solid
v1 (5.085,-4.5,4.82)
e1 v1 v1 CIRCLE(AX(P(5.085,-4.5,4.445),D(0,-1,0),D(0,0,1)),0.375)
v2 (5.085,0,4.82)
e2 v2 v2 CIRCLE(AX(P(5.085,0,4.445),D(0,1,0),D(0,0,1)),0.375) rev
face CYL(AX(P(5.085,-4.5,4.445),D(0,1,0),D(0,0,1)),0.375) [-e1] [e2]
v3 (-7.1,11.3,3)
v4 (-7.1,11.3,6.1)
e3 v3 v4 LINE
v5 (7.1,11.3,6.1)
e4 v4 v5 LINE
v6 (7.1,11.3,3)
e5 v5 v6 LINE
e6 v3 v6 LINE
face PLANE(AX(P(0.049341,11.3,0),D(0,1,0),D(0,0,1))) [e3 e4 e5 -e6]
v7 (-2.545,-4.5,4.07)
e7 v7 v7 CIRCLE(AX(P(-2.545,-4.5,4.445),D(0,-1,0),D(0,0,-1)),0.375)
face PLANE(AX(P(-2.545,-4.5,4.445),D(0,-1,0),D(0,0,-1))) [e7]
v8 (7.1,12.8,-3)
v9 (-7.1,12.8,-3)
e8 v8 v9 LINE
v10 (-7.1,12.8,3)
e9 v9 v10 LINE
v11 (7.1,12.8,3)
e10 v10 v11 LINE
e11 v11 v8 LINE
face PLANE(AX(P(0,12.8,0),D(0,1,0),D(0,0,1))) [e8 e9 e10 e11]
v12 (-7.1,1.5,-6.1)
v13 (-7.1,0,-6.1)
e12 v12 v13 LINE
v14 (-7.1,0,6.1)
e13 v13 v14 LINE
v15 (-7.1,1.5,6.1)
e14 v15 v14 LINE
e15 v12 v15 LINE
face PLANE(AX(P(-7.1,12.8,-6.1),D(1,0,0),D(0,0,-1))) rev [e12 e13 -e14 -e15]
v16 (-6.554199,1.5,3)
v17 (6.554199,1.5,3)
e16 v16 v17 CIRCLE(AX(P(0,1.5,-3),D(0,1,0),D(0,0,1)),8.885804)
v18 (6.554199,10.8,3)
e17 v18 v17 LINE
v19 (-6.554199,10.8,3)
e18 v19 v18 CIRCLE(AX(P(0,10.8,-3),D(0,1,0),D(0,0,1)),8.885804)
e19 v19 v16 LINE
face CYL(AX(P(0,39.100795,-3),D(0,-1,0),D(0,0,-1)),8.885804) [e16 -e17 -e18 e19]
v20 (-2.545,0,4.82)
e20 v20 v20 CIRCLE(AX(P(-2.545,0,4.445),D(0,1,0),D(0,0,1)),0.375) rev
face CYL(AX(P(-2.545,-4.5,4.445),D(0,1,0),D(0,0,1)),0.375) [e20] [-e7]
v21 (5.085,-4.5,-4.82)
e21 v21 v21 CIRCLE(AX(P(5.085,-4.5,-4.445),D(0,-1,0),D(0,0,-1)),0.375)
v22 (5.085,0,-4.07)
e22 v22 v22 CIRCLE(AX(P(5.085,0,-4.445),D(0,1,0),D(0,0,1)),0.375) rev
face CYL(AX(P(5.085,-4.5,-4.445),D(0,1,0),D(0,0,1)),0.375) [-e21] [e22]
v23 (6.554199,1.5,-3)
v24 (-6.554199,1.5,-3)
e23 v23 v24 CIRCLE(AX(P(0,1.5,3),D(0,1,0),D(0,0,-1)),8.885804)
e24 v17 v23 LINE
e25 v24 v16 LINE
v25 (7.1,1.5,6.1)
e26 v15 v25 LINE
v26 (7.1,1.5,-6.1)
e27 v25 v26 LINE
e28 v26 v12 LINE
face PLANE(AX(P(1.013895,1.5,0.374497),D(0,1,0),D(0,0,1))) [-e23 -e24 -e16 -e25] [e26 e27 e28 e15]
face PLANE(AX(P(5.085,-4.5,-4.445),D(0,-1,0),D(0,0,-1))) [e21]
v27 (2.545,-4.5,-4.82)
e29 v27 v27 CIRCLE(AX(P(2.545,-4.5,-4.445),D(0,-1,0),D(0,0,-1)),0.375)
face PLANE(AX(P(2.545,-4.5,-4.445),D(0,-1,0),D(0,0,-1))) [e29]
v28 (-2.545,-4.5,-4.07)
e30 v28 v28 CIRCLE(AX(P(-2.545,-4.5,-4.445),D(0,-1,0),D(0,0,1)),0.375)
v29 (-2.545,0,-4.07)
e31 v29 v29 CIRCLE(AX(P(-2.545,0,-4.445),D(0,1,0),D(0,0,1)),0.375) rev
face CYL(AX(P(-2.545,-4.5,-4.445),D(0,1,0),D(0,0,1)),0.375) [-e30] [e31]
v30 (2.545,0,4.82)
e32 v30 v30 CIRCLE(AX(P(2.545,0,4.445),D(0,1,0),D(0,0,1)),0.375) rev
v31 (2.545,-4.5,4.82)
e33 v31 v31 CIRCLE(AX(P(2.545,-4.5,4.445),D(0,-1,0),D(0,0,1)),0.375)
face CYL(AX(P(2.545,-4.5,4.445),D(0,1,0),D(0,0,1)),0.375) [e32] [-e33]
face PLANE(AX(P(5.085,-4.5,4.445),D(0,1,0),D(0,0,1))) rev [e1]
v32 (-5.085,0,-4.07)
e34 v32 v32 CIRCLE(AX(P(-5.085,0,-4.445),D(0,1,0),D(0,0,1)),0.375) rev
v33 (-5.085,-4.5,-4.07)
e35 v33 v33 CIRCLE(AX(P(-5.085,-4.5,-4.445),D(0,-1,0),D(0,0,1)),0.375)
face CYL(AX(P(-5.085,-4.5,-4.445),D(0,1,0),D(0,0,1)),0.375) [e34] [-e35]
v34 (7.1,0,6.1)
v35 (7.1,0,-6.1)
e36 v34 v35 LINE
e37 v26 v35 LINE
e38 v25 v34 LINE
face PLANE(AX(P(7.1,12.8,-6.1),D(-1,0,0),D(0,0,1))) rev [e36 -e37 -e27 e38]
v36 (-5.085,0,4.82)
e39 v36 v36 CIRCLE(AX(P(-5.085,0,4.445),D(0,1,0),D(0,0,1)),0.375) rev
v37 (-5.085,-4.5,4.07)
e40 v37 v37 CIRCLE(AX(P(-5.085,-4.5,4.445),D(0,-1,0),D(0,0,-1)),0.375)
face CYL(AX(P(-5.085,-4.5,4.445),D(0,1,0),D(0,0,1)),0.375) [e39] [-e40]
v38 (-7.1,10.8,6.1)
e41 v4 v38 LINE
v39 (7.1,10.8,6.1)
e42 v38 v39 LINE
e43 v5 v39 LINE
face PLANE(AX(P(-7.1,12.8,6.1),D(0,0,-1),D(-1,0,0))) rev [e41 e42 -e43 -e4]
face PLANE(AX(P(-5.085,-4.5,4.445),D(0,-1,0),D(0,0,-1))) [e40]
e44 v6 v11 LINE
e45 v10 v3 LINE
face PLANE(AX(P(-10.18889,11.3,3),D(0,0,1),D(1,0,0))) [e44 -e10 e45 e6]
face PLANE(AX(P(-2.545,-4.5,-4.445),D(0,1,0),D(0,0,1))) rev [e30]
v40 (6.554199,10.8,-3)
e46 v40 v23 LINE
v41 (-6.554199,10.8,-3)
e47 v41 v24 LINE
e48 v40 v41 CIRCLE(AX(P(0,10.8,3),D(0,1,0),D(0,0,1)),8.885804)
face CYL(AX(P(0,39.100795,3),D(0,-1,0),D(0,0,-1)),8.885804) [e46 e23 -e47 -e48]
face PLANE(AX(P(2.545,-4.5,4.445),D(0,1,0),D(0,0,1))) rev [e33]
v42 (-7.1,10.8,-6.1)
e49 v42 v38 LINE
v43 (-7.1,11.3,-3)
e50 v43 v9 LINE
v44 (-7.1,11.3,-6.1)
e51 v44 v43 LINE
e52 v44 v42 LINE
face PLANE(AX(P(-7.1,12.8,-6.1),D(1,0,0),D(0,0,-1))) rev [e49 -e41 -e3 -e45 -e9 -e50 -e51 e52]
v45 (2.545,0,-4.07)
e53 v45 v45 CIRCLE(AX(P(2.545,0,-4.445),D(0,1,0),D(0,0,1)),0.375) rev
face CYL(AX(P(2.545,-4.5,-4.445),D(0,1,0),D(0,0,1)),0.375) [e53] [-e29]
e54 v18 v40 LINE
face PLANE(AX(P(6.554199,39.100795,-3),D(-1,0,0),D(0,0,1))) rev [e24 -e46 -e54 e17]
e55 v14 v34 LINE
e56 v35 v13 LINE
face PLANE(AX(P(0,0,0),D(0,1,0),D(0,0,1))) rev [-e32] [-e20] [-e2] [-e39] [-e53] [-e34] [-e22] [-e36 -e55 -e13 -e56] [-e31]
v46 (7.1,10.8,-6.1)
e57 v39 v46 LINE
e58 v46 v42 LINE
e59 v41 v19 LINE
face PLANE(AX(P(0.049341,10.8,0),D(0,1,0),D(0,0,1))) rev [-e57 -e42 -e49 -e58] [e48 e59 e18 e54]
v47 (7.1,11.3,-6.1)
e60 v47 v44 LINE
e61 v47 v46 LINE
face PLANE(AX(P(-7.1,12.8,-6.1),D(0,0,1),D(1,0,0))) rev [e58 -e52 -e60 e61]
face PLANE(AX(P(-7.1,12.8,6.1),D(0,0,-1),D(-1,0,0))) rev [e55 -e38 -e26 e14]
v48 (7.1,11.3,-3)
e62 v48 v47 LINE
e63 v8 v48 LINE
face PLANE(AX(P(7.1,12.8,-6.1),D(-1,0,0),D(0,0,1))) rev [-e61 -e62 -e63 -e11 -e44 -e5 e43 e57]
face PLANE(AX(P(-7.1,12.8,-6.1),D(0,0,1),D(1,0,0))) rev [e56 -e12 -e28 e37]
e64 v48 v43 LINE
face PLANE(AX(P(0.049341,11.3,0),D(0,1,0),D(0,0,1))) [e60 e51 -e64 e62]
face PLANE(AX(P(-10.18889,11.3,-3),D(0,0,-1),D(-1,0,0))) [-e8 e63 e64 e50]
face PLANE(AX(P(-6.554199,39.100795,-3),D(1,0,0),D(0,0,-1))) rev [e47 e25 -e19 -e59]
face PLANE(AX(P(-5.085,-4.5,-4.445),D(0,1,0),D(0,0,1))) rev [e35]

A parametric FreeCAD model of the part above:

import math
import FreeCAD as App
import Part
import Sketcher
from FreeCAD import Vector

doc = App.newDocument("Part")
body = doc.addObject("PartDesign::Body", "Body")

sketch1 = body.newObject("Sketcher::SketchObject", "Sketch")
sketch1.AttachmentSupport = (doc.getObject("XZ_Plane"), [""])
sketch1.MapMode = "FlatFace"
sketch1.addGeometry(Part.LineSegment(Vector(-7, -6, 0), Vector(-7, 6, 0)), False)
sketch1.addGeometry(Part.LineSegment(Vector(-7, 6, 0), Vector(7, 6, 0)), False)
sketch1.addGeometry(Part.LineSegment(Vector(7, 6, 0), Vector(7, -6, 0)), False)
sketch1.addGeometry(Part.LineSegment(Vector(7, -6, 0), Vector(-7, -6, 0)), False)
sketch1.addConstraint(Sketcher.Constraint("Coincident", 0, 2, 1, 1))
sketch1.addConstraint(Sketcher.Constraint("Coincident", 1, 2, 2, 1))
sketch1.addConstraint(Sketcher.Constraint("Coincident", 2, 2, 3, 1))
sketch1.addConstraint(Sketcher.Constraint("Coincident", 3, 2, 0, 1))
sketch1.addConstraint(Sketcher.Constraint("Vertical", 0))
sketch1.addConstraint(Sketcher.Constraint("Horizontal", 1))
sketch1.addConstraint(Sketcher.Constraint("Vertical", 2))
sketch1.addConstraint(Sketcher.Constraint("Horizontal", 3))
sketch1.addConstraint(Sketcher.Constraint("Symmetric", 0, 2, 2, 2, -1, 1))
sketch1.addConstraint(Sketcher.Constraint("DistanceX", 1, 1, 1, 2, 14.2))
sketch1.addConstraint(Sketcher.Constraint("DistanceY", 0, 1, 0, 2, 12.2))
pad1 = body.newObject("PartDesign::Pad", "Pad")
pad1.Profile = sketch1
pad1.Length = 12.8
pad1.Reversed = True

sketch2 = body.newObject("Sketcher::SketchObject", "Sketch001")
sketch2.AttachmentSupport = (doc.getObject("XZ_Plane"), [""])
sketch2.MapMode = "FlatFace"
sketch2.AttachmentOffset = App.Placement(Vector(0, 0, -12.8), App.Rotation())
sketch2.addGeometry(Part.LineSegment(Vector(-10, -9, 0), Vector(-10, 9, 0)), False)
sketch2.addGeometry(Part.LineSegment(Vector(-10, 9, 0), Vector(10, 9, 0)), False)
sketch2.addGeometry(Part.LineSegment(Vector(10, 9, 0), Vector(10, -9, 0)), False)
sketch2.addGeometry(Part.LineSegment(Vector(10, -9, 0), Vector(-10, -9, 0)), False)
sketch2.addGeometry(Part.LineSegment(Vector(10, 3, 0), Vector(-10, 3, 0)), False)
sketch2.addGeometry(Part.LineSegment(Vector(-10, 3, 0), Vector(-10, -3, 0)), False)
sketch2.addGeometry(Part.LineSegment(Vector(-10, -3, 0), Vector(10, -3, 0)), False)
sketch2.addGeometry(Part.LineSegment(Vector(10, -3, 0), Vector(10, 3, 0)), False)
sketch2.addConstraint(Sketcher.Constraint("Coincident", 0, 2, 1, 1))
sketch2.addConstraint(Sketcher.Constraint("Coincident", 1, 2, 2, 1))
sketch2.addConstraint(Sketcher.Constraint("Coincident", 2, 2, 3, 1))
sketch2.addConstraint(Sketcher.Constraint("Coincident", 3, 2, 0, 1))
sketch2.addConstraint(Sketcher.Constraint("Coincident", 4, 2, 5, 1))
sketch2.addConstraint(Sketcher.Constraint("Coincident", 5, 2, 6, 1))
sketch2.addConstraint(Sketcher.Constraint("Coincident", 6, 2, 7, 1))
sketch2.addConstraint(Sketcher.Constraint("Coincident", 7, 2, 4, 1))
sketch2.addConstraint(Sketcher.Constraint("Vertical", 0))
sketch2.addConstraint(Sketcher.Constraint("Horizontal", 1))
sketch2.addConstraint(Sketcher.Constraint("Vertical", 2))
sketch2.addConstraint(Sketcher.Constraint("Horizontal", 3))
sketch2.addConstraint(Sketcher.Constraint("Horizontal", 4))
sketch2.addConstraint(Sketcher.Constraint("Vertical", 5))
sketch2.addConstraint(Sketcher.Constraint("Horizontal", 6))
sketch2.addConstraint(Sketcher.Constraint("Vertical", 7))
sketch2.addConstraint(Sketcher.Constraint("Symmetric", 0, 2, 2, 2, -1, 1))
sketch2.addConstraint(Sketcher.Constraint("DistanceY", 5, 2, 5, 1, 6.0))
sketch2.addConstraint(Sketcher.Constraint("DistanceY", -1, 1, 4, 2, 3.0))
sketch2.addConstraint(Sketcher.Constraint("DistanceX", 1, 1, 1, 2, 20.736))
sketch2.addConstraint(Sketcher.Constraint("DistanceY", 0, 1, 0, 2, 18.736))
sketch2.addConstraint(Sketcher.Constraint("DistanceX", 4, 2, 4, 1, 19.736349))
sketch2.addConstraint(Sketcher.Constraint("DistanceX", 4, 2, -1, 1, 10.18889))
pocket1 = body.newObject("PartDesign::Pocket", "Pocket")
pocket1.Profile = sketch2
pocket1.Length = 1.5
pocket1.Reversed = True

sketch3 = body.newObject("Sketcher::SketchObject", "Sketch002")
sketch3.AttachmentSupport = (doc.getObject("XZ_Plane"), [""])
sketch3.MapMode = "FlatFace"
sketch3.AttachmentOffset = App.Placement(Vector(0, 0, -1.5), App.Rotation())
sketch3.addGeometry(Part.LineSegment(Vector(-10, -9, 0), Vector(-10, 9, 0)), False)
sketch3.addGeometry(Part.LineSegment(Vector(-10, 9, 0), Vector(10, 9, 0)), False)
sketch3.addGeometry(Part.LineSegment(Vector(10, 9, 0), Vector(10, -9, 0)), False)
sketch3.addGeometry(Part.LineSegment(Vector(10, -9, 0), Vector(-10, -9, 0)), False)
sketch3.addGeometry(Part.LineSegment(Vector(-7, 3, 0), Vector(-7, -3, 0)), False)
sketch3.addGeometry(Part.ArcOfCircle(Part.Circle(Vector(0, 3, 0), Vector(0, 0, 1), 9), math.radians(-138), math.radians(-42)), False)
sketch3.addGeometry(Part.LineSegment(Vector(7, -3, 0), Vector(7, 3, 0)), False)
sketch3.addGeometry(Part.ArcOfCircle(Part.Circle(Vector(0, -3, 0), Vector(0, 0, 1), 9), math.radians(42), math.radians(138)), False)
sketch3.addConstraint(Sketcher.Constraint("Coincident", 0, 2, 1, 1))
sketch3.addConstraint(Sketcher.Constraint("Coincident", 1, 2, 2, 1))
sketch3.addConstraint(Sketcher.Constraint("Coincident", 2, 2, 3, 1))
sketch3.addConstraint(Sketcher.Constraint("Coincident", 3, 2, 0, 1))
sketch3.addConstraint(Sketcher.Constraint("Coincident", 4, 2, 5, 1))
sketch3.addConstraint(Sketcher.Constraint("Coincident", 5, 2, 6, 1))
sketch3.addConstraint(Sketcher.Constraint("Coincident", 6, 2, 7, 1))
sketch3.addConstraint(Sketcher.Constraint("Coincident", 7, 2, 4, 1))
sketch3.addConstraint(Sketcher.Constraint("Vertical", 0))
sketch3.addConstraint(Sketcher.Constraint("Horizontal", 1))
sketch3.addConstraint(Sketcher.Constraint("Vertical", 2))
sketch3.addConstraint(Sketcher.Constraint("Horizontal", 3))
sketch3.addConstraint(Sketcher.Constraint("Vertical", 4))
sketch3.addConstraint(Sketcher.Constraint("Vertical", 6))
sketch3.addConstraint(Sketcher.Constraint("Equal", 5, 7))
sketch3.addConstraint(Sketcher.Constraint("Symmetric", 5, 3, 7, 3, -1, 1))
sketch3.addConstraint(Sketcher.Constraint("Symmetric", 0, 2, 2, 2, -1, 1))
sketch3.addConstraint(Sketcher.Constraint("Symmetric", 4, 2, 5, 2, -2))
sketch3.addConstraint(Sketcher.Constraint("Horizontal", 7, 3, 4, 2))
sketch3.addConstraint(Sketcher.Constraint("DistanceY", 4, 2, 4, 1, 6.0))
sketch3.addConstraint(Sketcher.Constraint("DistanceX", 1, 1, 1, 2, 20.736))
sketch3.addConstraint(Sketcher.Constraint("DistanceY", 0, 1, 0, 2, 18.736))
sketch3.addConstraint(Sketcher.Constraint("Radius", 5, 8.885804))
pocket2 = body.newObject("PartDesign::Pocket", "Pocket001")
pocket2.Profile = sketch3
pocket2.Length = 9.3

sketch4 = body.newObject("Sketcher::SketchObject", "Sketch003")
sketch4.AttachmentSupport = (doc.getObject("XZ_Plane"), [""])
sketch4.MapMode = "FlatFace"
sketch4.addGeometry(Part.Circle(Vector(-5.08, 4.45, 0), Vector(0, 0, 1), 0.38), False)
sketch4.addGeometry(Part.Circle(Vector(-2.54, 4.45, 0), Vector(0, 0, 1), 0.38), False)
sketch4.addGeometry(Part.Circle(Vector(2.54, 4.45, 0), Vector(0, 0, 1), 0.38), False)
sketch4.addGeometry(Part.Circle(Vector(5.08, 4.45, 0), Vector(0, 0, 1), 0.38), False)
sketch4.addGeometry(Part.Circle(Vector(5.08, -4.45, 0), Vector(0, 0, 1), 0.38), False)
sketch4.addGeometry(Part.Circle(Vector(2.54, -4.45, 0), Vector(0, 0, 1), 0.38), False)
sketch4.addGeometry(Part.Circle(Vector(-2.54, -4.45, 0), Vector(0, 0, 1), 0.38), False)
sketch4.addGeometry(Part.Circle(Vector(-5.08, -4.45, 0), Vector(0, 0, 1), 0.38), False)
sketch4.addConstraint(Sketcher.Constraint("Equal", 0, 1))
sketch4.addConstraint(Sketcher.Constraint("Equal", 1, 2))
sketch4.addConstraint(Sketcher.Constraint("Equal", 2, 3))
sketch4.addConstraint(Sketcher.Constraint("Equal", 3, 4))
sketch4.addConstraint(Sketcher.Constraint("Equal", 4, 5))
sketch4.addConstraint(Sketcher.Constraint("Equal", 5, 6))
sketch4.addConstraint(Sketcher.Constraint("Equal", 6, 7))
sketch4.addConstraint(Sketcher.Constraint("Symmetric", 0, 3, 4, 3, -1, 1))
sketch4.addConstraint(Sketcher.Constraint("Symmetric", 1, 3, 5, 3, -1, 1))
sketch4.addConstraint(Sketcher.Constraint("Symmetric", 2, 3, 6, 3, -1, 1))
sketch4.addConstraint(Sketcher.Constraint("Symmetric", 3, 3, 7, 3, -1, 1))
sketch4.addConstraint(Sketcher.Constraint("Symmetric", 1, 3, 2, 3, -2))
sketch4.addConstraint(Sketcher.Constraint("Symmetric", 0, 3, 3, 3, -2))
sketch4.addConstraint(Sketcher.Constraint("Horizontal", 0, 3, 1, 3))
sketch4.addConstraint(Sketcher.Constraint("Diameter", 0, 0.75))
sketch4.addConstraint(Sketcher.Constraint("DistanceX", 0, 3, 1, 3, 2.54))
sketch4.addConstraint(Sketcher.Constraint("DistanceX", 1, 3, 2, 3, 5.09))
sketch4.addConstraint(Sketcher.Constraint("DistanceY", 4, 3, 3, 3, 8.89))
pad2 = body.newObject("PartDesign::Pad", "Pad001")
pad2.Profile = sketch4
pad2.Length = 4.5

doc.recompute()
